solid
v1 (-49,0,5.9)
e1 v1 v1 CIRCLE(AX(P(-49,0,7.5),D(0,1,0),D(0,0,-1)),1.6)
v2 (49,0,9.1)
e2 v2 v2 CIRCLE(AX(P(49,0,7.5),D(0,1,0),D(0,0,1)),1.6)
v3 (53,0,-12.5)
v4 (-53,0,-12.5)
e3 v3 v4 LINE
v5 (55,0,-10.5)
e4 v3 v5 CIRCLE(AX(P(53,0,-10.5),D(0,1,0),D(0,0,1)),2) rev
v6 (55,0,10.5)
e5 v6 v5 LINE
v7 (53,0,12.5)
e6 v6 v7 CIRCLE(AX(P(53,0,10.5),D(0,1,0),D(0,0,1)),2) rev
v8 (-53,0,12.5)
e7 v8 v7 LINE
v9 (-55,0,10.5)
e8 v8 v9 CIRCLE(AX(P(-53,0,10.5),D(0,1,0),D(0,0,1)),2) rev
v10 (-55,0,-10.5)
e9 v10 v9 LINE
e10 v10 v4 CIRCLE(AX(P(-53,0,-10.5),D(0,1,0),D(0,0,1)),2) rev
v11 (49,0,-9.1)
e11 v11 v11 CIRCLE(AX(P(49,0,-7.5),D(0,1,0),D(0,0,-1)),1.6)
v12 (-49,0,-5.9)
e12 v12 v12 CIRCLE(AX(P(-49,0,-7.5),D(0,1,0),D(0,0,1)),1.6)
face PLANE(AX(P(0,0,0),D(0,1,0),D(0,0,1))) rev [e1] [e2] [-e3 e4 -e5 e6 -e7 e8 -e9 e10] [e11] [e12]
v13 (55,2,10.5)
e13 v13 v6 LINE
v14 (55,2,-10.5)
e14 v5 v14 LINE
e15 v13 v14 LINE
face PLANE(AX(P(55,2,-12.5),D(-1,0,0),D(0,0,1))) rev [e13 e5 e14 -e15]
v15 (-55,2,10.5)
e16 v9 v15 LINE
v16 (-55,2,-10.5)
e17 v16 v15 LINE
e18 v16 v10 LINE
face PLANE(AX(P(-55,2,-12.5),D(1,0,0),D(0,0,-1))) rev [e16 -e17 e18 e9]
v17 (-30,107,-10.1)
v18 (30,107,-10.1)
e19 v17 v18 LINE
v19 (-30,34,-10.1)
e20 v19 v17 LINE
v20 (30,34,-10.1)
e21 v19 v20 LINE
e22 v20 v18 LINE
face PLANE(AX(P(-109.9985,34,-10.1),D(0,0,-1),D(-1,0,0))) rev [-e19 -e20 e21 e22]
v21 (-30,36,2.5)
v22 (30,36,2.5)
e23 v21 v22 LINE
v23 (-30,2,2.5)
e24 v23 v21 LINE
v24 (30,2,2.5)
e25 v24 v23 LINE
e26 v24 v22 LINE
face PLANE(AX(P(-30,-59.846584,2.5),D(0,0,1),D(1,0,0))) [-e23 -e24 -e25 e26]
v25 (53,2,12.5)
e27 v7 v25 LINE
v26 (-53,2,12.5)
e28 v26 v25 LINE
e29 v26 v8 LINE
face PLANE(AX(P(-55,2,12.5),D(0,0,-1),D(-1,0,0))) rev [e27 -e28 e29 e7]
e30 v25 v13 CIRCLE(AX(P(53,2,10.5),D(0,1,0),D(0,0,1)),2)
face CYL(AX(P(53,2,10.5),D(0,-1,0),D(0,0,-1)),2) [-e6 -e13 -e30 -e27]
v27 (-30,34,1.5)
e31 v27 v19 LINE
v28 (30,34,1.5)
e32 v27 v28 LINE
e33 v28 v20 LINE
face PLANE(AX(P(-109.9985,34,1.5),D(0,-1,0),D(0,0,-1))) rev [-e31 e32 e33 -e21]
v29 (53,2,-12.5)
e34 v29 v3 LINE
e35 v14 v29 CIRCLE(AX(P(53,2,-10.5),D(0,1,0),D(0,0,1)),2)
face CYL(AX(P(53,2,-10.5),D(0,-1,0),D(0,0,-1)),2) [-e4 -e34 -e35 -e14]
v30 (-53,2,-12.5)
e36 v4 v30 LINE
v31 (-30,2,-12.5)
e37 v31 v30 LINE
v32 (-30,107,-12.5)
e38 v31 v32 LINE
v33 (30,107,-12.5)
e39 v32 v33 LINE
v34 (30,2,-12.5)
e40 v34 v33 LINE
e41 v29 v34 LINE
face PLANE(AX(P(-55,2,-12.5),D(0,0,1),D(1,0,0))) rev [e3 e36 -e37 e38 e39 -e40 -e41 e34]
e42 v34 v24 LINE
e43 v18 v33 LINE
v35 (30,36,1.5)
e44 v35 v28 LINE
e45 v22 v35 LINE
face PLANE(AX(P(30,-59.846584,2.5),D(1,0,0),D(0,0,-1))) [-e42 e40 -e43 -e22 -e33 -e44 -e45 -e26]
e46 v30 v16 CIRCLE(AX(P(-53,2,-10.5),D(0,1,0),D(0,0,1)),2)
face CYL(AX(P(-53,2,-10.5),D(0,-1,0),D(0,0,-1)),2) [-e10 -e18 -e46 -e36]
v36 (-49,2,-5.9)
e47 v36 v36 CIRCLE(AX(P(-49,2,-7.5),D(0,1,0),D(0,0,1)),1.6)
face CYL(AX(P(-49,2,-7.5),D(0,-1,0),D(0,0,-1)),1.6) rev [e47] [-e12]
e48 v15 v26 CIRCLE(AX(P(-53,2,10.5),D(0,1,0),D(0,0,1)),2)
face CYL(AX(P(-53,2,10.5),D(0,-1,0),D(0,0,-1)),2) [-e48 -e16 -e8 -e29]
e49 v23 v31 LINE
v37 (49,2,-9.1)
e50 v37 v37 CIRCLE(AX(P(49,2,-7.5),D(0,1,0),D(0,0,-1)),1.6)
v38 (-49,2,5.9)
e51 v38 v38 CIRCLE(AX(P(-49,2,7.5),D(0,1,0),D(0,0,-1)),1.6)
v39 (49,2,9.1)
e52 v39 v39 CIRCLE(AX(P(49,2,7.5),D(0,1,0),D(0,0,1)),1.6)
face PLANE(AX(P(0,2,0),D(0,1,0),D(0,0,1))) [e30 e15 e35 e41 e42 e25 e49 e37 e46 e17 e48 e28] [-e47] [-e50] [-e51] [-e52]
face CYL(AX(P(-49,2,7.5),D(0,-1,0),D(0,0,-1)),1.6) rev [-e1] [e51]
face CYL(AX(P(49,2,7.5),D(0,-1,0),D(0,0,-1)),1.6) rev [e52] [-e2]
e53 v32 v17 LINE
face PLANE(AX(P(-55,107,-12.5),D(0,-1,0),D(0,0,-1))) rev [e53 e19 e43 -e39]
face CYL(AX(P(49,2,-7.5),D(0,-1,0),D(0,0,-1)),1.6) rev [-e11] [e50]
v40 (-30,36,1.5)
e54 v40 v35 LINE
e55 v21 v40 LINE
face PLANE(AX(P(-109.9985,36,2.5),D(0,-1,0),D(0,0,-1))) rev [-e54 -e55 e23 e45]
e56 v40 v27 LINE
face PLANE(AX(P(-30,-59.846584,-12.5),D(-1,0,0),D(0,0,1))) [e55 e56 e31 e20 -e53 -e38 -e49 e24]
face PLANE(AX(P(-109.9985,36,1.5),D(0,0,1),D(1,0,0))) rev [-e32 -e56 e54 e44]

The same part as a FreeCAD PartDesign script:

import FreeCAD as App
import Part
import Sketcher

V = App.Vector


def edges_at(feature, points):
    """Names of the edges that pass closest to the given points."""
    edges = feature.Shape.Edges
    near = lambda p: min(range(len(edges)), key=lambda i: edges[i].distToShape(Part.Vertex(*p))[0])
    return sorted({f"Edge{near(p) + 1}" for p in points})

doc = App.newDocument("Part")
params = doc.addObject("Spreadsheet::Sheet", "Params")
for row, (alias, value) in enumerate([
    ("sketch1_diameter", "3.2 mm"),
    ("sketch1_width", "110 mm"),
    ("sketch1_height", "25 mm"),
    ("pad1_length", "2 mm"),
    ("sketch2_width", "60 mm"),
    ("sketch2_height", "15 mm"),
    ("pad2_length", "113 mm"),
    ("sketch3_width", "2 mm"),
    ("sketch3_width2", "79 mm"),
    ("sketch3_height", "1 mm"),
    ("sketch3_height2", "11.6 mm"),
    ("pocket1_length", "60 mm"),
    ("fillet_radius", "2 mm"),
    ("fillet2_radius", "2 mm"),
    ("fillet3_radius", "2 mm"),
    ("fillet4_radius", "2 mm"),
    ("sketch4_width", "8 mm"),
    ("sketch4_width2", "5 mm"),
    ("sketch4_width3", "3 mm"),
    ("sketch4_height", "11.6 mm"),
    ("sketch5_width", "60 mm"),
    ("sketch5_height", "6 mm"),
], start=1):
    params.set(f"A{row}", alias)
    params.set(f"B{row}", "=" + value)
    params.setAlias(f"B{row}", alias)

body = doc.addObject("PartDesign::Body", "Body")

sketch1 = body.newObject("Sketcher::SketchObject", "Sketch")
sketch1.AttachmentSupport = (doc.getObject("XZ_Plane"), [""])
sketch1.MapMode = "FlatFace"
sketch1.addGeometry(Part.LineSegment(V(-55, -12.5, 0), V(-55, 12.5, 0)), False)
sketch1.addGeometry(Part.LineSegment(V(-55, 12.5, 0), V(55, 12.5, 0)), False)
sketch1.addGeometry(Part.LineSegment(V(55, 12.5, 0), V(55, -12.5, 0)), False)
sketch1.addGeometry(Part.LineSegment(V(55, -12.5, 0), V(-55, -12.5, 0)), False)
sketch1.addGeometry(Part.Circle(V(-49, 7.5, 0), V(0, 0, 1), 1.6), False)
sketch1.addGeometry(Part.Circle(V(49, 7.5, 0), V(0, 0, 1), 1.6), False)
sketch1.addGeometry(Part.Circle(V(-49, -7.5, 0), V(0, 0, 1), 1.6), False)
sketch1.addGeometry(Part.Circle(V(49, -7.5, 0), V(0, 0, 1), 1.6), False)
sketch1.addConstraint(Sketcher.Constraint("Coincident", 0, 2, 1, 1))
sketch1.addConstraint(Sketcher.Constraint("Coincident", 1, 2, 2, 1))
sketch1.addConstraint(Sketcher.Constraint("Coincident", 2, 2, 3, 1))
sketch1.addConstraint(Sketcher.Constraint("Coincident", 3, 2, 0, 1))
sketch1.addConstraint(Sketcher.Constraint("Vertical", 0))
sketch1.addConstraint(Sketcher.Constraint("Horizontal", 1))
sketch1.addConstraint(Sketcher.Constraint("Vertical", 2))
sketch1.addConstraint(Sketcher.Constraint("Horizontal", 3))
sketch1.addConstraint(Sketcher.Constraint("Equal", 4, 5))
sketch1.addConstraint(Sketcher.Constraint("Equal", 5, 6))
sketch1.addConstraint(Sketcher.Constraint("Equal", 6, 7))
sketch1.addConstraint(Sketcher.Constraint("Symmetric", 5, 3, 6, 3, -1, 1))
sketch1.addConstraint(Sketcher.Constraint("Symmetric", 4, 3, 7, 3, -1, 1))
sketch1.addConstraint(Sketcher.Constraint("Symmetric", 0, 2, 2, 2, -1, 1))
sketch1.addConstraint(Sketcher.Constraint("Symmetric", 4, 3, 5, 3, -2))
sketch1.addConstraint(Sketcher.Constraint("Diameter", 4, 3.2))
sketch1.addConstraint(Sketcher.Constraint("DistanceX", 1, 1, 1, 2, 110.0))
sketch1.addConstraint(Sketcher.Constraint("DistanceY", 0, 1, 0, 2, 25.0))
sketch1.addConstraint(Sketcher.Constraint("DistanceX", 4, 3, -1, 1, 49.0))
sketch1.addConstraint(Sketcher.Constraint("DistanceY", 6, 3, 4, 3, 15.0))
sketch1.setExpression("Constraints[15]", "Params.sketch1_diameter")
sketch1.setExpression("Constraints[16]", "Params.sketch1_width")
sketch1.setExpression("Constraints[17]", "Params.sketch1_height")
pad1 = body.newObject("PartDesign::Pad", "Pad")
pad1.Profile = sketch1
pad1.setExpression("Length", "Params.pad1_length")
pad1.Reversed = True

sketch2 = body.newObject("Sketcher::SketchObject", "Sketch001")
sketch2.AttachmentSupport = (doc.getObject("XZ_Plane"), [""])
sketch2.MapMode = "FlatFace"
sketch2.AttachmentOffset = App.Placement(V(0, 0, -115), App.Rotation())
sketch2.addGeometry(Part.LineSegment(V(-30, -12, 0), V(-30, 2, 0)), False)
sketch2.addGeometry(Part.LineSegment(V(-30, 2, 0), V(30, 2, 0)), False)
sketch2.addGeometry(Part.LineSegment(V(30, 2, 0), V(30, -12, 0)), False)
sketch2.addGeometry(Part.LineSegment(V(30, -12, 0), V(-30, -12, 0)), False)
sketch2.addConstraint(Sketcher.Constraint("Coincident", 0, 2, 1, 1))
sketch2.addConstraint(Sketcher.Constraint("Coincident", 1, 2, 2, 1))
sketch2.addConstraint(Sketcher.Constraint("Coincident", 2, 2, 3, 1))
sketch2.addConstraint(Sketcher.Constraint("Coincident", 3, 2, 0, 1))
sketch2.addConstraint(Sketcher.Constraint("Vertical", 0))
sketch2.addConstraint(Sketcher.Constraint("Horizontal", 1))
sketch2.addConstraint(Sketcher.Constraint("Vertical", 2))
sketch2.addConstraint(Sketcher.Constraint("Horizontal", 3))
sketch2.addConstraint(Sketcher.Constraint("DistanceX", 1, 1, 1, 2, 60.0))
sketch2.addConstraint(Sketcher.Constraint("DistanceY", 0, 1, 0, 2, 15.0))
sketch2.addConstraint(Sketcher.Constraint("DistanceX", 0, 2, -1, 1, 30.0))
sketch2.addConstraint(Sketcher.Constraint("DistanceY", -1, 1, 0, 2, 2.5))
sketch2.setExpression("Constraints[8]", "Params.sketch2_width")
sketch2.setExpression("Constraints[9]", "Params.sketch2_height")
pad2 = body.newObject("PartDesign::Pad", "Pad001")
pad2.Profile = sketch2
pad2.setExpression("Length", "Params.pad2_length")

sketch3 = body.newObject("Sketcher::SketchObject", "Sketch002")
sketch3.AttachmentSupport = (doc.getObject("YZ_Plane"), [""])
sketch3.MapMode = "FlatFace"
sketch3.AttachmentOffset = App.Placement(V(0, 0, 30), App.Rotation())
sketch3.addGeometry(Part.LineSegment(V(36, 2.5, 0), V(36, 1.5, 0)), False)
sketch3.addGeometry(Part.LineSegment(V(36, 1.5, 0), V(34, 1.5, 0)), False)
sketch3.addGeometry(Part.LineSegment(V(34, 1.5, 0), V(34, -10.1, 0)), False)
sketch3.addGeometry(Part.LineSegment(V(34, -10.1, 0), V(113, -10.1, 0)), False)
sketch3.addGeometry(Part.LineSegment(V(113, -10.1, 0), V(113, 1.5, 0)), False)
sketch3.addGeometry(Part.LineSegment(V(113, 1.5, 0), V(111, 1.5, 0)), False)
sketch3.addGeometry(Part.LineSegment(V(111, 1.5, 0), V(111, 2.5, 0)), False)
sketch3.addGeometry(Part.LineSegment(V(111, 2.5, 0), V(36, 2.5, 0)), False)
sketch3.addConstraint(Sketcher.Constraint("Coincident", 0, 2, 1, 1))
sketch3.addConstraint(Sketcher.Constraint("Coincident", 1, 2, 2, 1))
sketch3.addConstraint(Sketcher.Constraint("Coincident", 2, 2, 3, 1))
sketch3.addConstraint(Sketcher.Constraint("Coincident", 3, 2, 4, 1))
sketch3.addConstraint(Sketcher.Constraint("Coincident", 4, 2, 5, 1))
sketch3.addConstraint(Sketcher.Constraint("Coincident", 5, 2, 6, 1))
sketch3.addConstraint(Sketcher.Constraint("Coincident", 6, 2, 7, 1))
sketch3.addConstraint(Sketcher.Constraint("Coincident", 7, 2, 0, 1))
sketch3.addConstraint(Sketcher.Constraint("Vertical", 0))
sketch3.addConstraint(Sketcher.Constraint("Horizontal", 1))
sketch3.addConstraint(Sketcher.Constraint("Vertical", 2))
sketch3.addConstraint(Sketcher.Constraint("Horizontal", 3))
sketch3.addConstraint(Sketcher.Constraint("Vertical", 4))
sketch3.addConstraint(Sketcher.Constraint("Horizontal", 5))
sketch3.addConstraint(Sketcher.Constraint("Vertical", 6))
sketch3.addConstraint(Sketcher.Constraint("Horizontal", 7))
sketch3.addConstraint(Sketcher.Constraint("Horizontal", 1, 2, 4, 2))
sketch3.addConstraint(Sketcher.Constraint("Equal", 1, 5))
sketch3.addConstraint(Sketcher.Constraint("DistanceX", 1, 2, 1, 1, 2.0))
sketch3.addConstraint(Sketcher.Constraint("DistanceX", 3, 1, 3, 2, 79.0))
sketch3.addConstraint(Sketcher.Constraint("DistanceY", 0, 2, 0, 1, 1.0))
sketch3.addConstraint(Sketcher.Constraint("DistanceY", 2, 2, 2, 1, 11.6))
sketch3.addConstraint(Sketcher.Constraint("DistanceX", -1, 1, 0, 2, 36.0))
sketch3.addConstraint(Sketcher.Constraint("DistanceY", -1, 1, 0, 2, 1.5))
sketch3.setExpression("Constraints[18]", "Params.sketch3_width")
sketch3.setExpression("Constraints[19]", "Params.sketch3_width2")
sketch3.setExpression("Constraints[20]", "Params.sketch3_height")
sketch3.setExpression("Constraints[21]", "Params.sketch3_height2")
pocket1 = body.newObject("PartDesign::Pocket", "Pocket")
pocket1.Profile = sketch3
pocket1.setExpression("Length", "Params.pocket1_length")
doc.recompute()

fillet = body.newObject("PartDesign::Fillet", "Fillet")
fillet.Base = (pocket1, edges_at(pocket1, [(55, 1, 12.5)]))
fillet.setExpression("Radius", "Params.fillet_radius")
doc.recompute()

fillet2 = body.newObject("PartDesign::Fillet", "Fillet001")
fillet2.Base = (fillet, edges_at(fillet, [(55, 1, -12.5)]))
fillet2.setExpression("Radius", "Params.fillet2_radius")
doc.recompute()

fillet3 = body.newObject("PartDesign::Fillet", "Fillet002")
fillet3.Base = (fillet2, edges_at(fillet2, [(-55, 1, -12.5)]))
fillet3.setExpression("Radius", "Params.fillet3_radius")
doc.recompute()

fillet4 = body.newObject("PartDesign::Fillet", "Fillet003")
fillet4.Base = (fillet3, edges_at(fillet3, [(-55, 1, 12.5)]))
fillet4.setExpression("Radius", "Params.fillet4_radius")

sketch4 = body.newObject("Sketcher::SketchObject", "Sketch003")
sketch4.AttachmentSupport = (doc.getObject("YZ_Plane"), [""])
sketch4.MapMode = "FlatFace"
sketch4.AttachmentOffset = App.Placement(V(0, 0, 30), App.Rotation())
sketch4.addGeometry(Part.LineSegment(V(113, -10.1, 0), V(107, -10.1, 0)), False)
sketch4.addGeometry(Part.LineSegment(V(107, -10.1, 0), V(107, -12.5, 0)), False)
sketch4.addGeometry(Part.LineSegment(V(107, -12.5, 0), V(115, -12.5, 0)), False)
sketch4.addGeometry(Part.LineSegment(V(115, -12.5, 0), V(115, 2.6, 0)), False)
sketch4.addGeometry(Part.LineSegment(V(115, 2.6, 0), V(110, 2.6, 0)), False)
sketch4.addGeometry(Part.LineSegment(V(110, 2.6, 0), V(110, 1.5, 0)), False)
sketch4.addGeometry(Part.LineSegment(V(110, 1.5, 0), V(113, 1.5, 0)), False)
sketch4.addGeometry(Part.LineSegment(V(113, 1.5, 0), V(113, -10.1, 0)), False)
sketch4.addConstraint(Sketcher.Constraint("Coincident", 0, 2, 1, 1))
sketch4.addConstraint(Sketcher.Constraint("Coincident", 1, 2, 2, 1))
sketch4.addConstraint(Sketcher.Constraint("Coincident", 2, 2, 3, 1))
sketch4.addConstraint(Sketcher.Constraint("Coincident", 3, 2, 4, 1))
sketch4.addConstraint(Sketcher.Constraint("Coincident", 4, 2, 5, 1))
sketch4.addConstraint(Sketcher.Constraint("Coincident", 5, 2, 6, 1))
sketch4.addConstraint(Sketcher.Constraint("Coincident", 6, 2, 7, 1))
sketch4.addConstraint(Sketcher.Constraint("Coincident", 7, 2, 0, 1))
sketch4.addConstraint(Sketcher.Constraint("Vertical", 1))
sketch4.addConstraint(Sketcher.Constraint("Horizontal", 2))
sketch4.addConstraint(Sketcher.Constraint("Vertical", 3))
sketch4.addConstraint(Sketcher.Constraint("Horizontal", 4))
sketch4.addConstraint(Sketcher.Constraint("Vertical", 5))
sketch4.addConstraint(Sketcher.Constraint("Horizontal", 6))
sketch4.addConstraint(Sketcher.Constraint("Vertical", 7))
sketch4.addConstraint(Sketcher.Constraint("DistanceX", 2, 1, 2, 2, 8.0))
sketch4.addConstraint(Sketcher.Constraint("DistanceX", 4, 2, 4, 1, 5.0))
sketch4.addConstraint(Sketcher.Constraint("DistanceX", 6, 1, 6, 2, 3.0))
sketch4.addConstraint(Sketcher.Constraint("DistanceY", 7, 2, 7, 1, 11.6))
sketch4.addConstraint(Sketcher.Constraint("DistanceX", -1, 1, 0, 2, 107.0))
sketch4.addConstraint(Sketcher.Constraint("DistanceY", 1, 2, 5, 2, 14.0))
sketch4.addConstraint(Sketcher.Constraint("DistanceY", 1, 2, -1, 1, 12.5))
sketch4.addConstraint(Sketcher.Constraint("DistanceY", 3, 1, 3, 2, 15.072411))
sketch4.addConstraint(Sketcher.Constraint("DistanceY", 1, 2, 1, 1, 2.374627))
sketch4.setExpression("Constraints[15]", "Params.sketch4_width")
sketch4.setExpression("Constraints[16]", "Params.sketch4_width2")
sketch4.setExpression("Constraints[17]", "Params.sketch4_width3")
sketch4.setExpression("Constraints[18]", "Params.sketch4_height")
pocket2 = body.newObject("PartDesign::Pocket", "Pocket001")
pocket2.Profile = sketch4
pocket2.Type = "ThroughAll"

sketch5 = body.newObject("Sketcher::SketchObject", "Sketch004")
sketch5.AttachmentSupport = (doc.getObject("XY_Plane"), [""])
sketch5.MapMode = "FlatFace"
sketch5.AttachmentOffset = App.Placement(V(0, 0, -10.1), App.Rotation())
sketch5.addGeometry(Part.LineSegment(V(-30, 113, 0), V(-30, 107, 0)), False)
sketch5.addGeometry(Part.LineSegment(V(-30, 107, 0), V(30, 107, 0)), False)
sketch5.addGeometry(Part.LineSegment(V(30, 107, 0), V(30, 113, 0)), False)
sketch5.addGeometry(Part.LineSegment(V(30, 113, 0), V(-30, 113, 0)), False)
sketch5.addConstraint(Sketcher.Constraint("Coincident", 0, 2, 1, 1))
sketch5.addConstraint(Sketcher.Constraint("Coincident", 1, 2, 2, 1))
sketch5.addConstraint(Sketcher.Constraint("Coincident", 2, 2, 3, 1))
sketch5.addConstraint(Sketcher.Constraint("Coincident", 3, 2, 0, 1))
sketch5.addConstraint(Sketcher.Constraint("Vertical", 0))
sketch5.addConstraint(Sketcher.Constraint("Horizontal", 1))
sketch5.addConstraint(Sketcher.Constraint("Vertical", 2))
sketch5.addConstraint(Sketcher.Constraint("Horizontal", 3))
sketch5.addConstraint(Sketcher.Constraint("DistanceX", 1, 1, 1, 2, 60.0))
sketch5.addConstraint(Sketcher.Constraint("DistanceY", 0, 2, 0, 1, 6.0))
sketch5.addConstraint(Sketcher.Constraint("DistanceX", 0, 2, -1, 1, 30.0))
sketch5.addConstraint(Sketcher.Constraint("DistanceY", -1, 1, 0, 2, 107.0))
sketch5.setExpression("Constraints[8]", "Params.sketch5_width")
sketch5.setExpression("Constraints[9]", "Params.sketch5_height")
pocket3 = body.newObject("PartDesign::Pocket", "Pocket002")
pocket3.Profile = sketch5
pocket3.Type = "ThroughAll"

doc.recompute()
